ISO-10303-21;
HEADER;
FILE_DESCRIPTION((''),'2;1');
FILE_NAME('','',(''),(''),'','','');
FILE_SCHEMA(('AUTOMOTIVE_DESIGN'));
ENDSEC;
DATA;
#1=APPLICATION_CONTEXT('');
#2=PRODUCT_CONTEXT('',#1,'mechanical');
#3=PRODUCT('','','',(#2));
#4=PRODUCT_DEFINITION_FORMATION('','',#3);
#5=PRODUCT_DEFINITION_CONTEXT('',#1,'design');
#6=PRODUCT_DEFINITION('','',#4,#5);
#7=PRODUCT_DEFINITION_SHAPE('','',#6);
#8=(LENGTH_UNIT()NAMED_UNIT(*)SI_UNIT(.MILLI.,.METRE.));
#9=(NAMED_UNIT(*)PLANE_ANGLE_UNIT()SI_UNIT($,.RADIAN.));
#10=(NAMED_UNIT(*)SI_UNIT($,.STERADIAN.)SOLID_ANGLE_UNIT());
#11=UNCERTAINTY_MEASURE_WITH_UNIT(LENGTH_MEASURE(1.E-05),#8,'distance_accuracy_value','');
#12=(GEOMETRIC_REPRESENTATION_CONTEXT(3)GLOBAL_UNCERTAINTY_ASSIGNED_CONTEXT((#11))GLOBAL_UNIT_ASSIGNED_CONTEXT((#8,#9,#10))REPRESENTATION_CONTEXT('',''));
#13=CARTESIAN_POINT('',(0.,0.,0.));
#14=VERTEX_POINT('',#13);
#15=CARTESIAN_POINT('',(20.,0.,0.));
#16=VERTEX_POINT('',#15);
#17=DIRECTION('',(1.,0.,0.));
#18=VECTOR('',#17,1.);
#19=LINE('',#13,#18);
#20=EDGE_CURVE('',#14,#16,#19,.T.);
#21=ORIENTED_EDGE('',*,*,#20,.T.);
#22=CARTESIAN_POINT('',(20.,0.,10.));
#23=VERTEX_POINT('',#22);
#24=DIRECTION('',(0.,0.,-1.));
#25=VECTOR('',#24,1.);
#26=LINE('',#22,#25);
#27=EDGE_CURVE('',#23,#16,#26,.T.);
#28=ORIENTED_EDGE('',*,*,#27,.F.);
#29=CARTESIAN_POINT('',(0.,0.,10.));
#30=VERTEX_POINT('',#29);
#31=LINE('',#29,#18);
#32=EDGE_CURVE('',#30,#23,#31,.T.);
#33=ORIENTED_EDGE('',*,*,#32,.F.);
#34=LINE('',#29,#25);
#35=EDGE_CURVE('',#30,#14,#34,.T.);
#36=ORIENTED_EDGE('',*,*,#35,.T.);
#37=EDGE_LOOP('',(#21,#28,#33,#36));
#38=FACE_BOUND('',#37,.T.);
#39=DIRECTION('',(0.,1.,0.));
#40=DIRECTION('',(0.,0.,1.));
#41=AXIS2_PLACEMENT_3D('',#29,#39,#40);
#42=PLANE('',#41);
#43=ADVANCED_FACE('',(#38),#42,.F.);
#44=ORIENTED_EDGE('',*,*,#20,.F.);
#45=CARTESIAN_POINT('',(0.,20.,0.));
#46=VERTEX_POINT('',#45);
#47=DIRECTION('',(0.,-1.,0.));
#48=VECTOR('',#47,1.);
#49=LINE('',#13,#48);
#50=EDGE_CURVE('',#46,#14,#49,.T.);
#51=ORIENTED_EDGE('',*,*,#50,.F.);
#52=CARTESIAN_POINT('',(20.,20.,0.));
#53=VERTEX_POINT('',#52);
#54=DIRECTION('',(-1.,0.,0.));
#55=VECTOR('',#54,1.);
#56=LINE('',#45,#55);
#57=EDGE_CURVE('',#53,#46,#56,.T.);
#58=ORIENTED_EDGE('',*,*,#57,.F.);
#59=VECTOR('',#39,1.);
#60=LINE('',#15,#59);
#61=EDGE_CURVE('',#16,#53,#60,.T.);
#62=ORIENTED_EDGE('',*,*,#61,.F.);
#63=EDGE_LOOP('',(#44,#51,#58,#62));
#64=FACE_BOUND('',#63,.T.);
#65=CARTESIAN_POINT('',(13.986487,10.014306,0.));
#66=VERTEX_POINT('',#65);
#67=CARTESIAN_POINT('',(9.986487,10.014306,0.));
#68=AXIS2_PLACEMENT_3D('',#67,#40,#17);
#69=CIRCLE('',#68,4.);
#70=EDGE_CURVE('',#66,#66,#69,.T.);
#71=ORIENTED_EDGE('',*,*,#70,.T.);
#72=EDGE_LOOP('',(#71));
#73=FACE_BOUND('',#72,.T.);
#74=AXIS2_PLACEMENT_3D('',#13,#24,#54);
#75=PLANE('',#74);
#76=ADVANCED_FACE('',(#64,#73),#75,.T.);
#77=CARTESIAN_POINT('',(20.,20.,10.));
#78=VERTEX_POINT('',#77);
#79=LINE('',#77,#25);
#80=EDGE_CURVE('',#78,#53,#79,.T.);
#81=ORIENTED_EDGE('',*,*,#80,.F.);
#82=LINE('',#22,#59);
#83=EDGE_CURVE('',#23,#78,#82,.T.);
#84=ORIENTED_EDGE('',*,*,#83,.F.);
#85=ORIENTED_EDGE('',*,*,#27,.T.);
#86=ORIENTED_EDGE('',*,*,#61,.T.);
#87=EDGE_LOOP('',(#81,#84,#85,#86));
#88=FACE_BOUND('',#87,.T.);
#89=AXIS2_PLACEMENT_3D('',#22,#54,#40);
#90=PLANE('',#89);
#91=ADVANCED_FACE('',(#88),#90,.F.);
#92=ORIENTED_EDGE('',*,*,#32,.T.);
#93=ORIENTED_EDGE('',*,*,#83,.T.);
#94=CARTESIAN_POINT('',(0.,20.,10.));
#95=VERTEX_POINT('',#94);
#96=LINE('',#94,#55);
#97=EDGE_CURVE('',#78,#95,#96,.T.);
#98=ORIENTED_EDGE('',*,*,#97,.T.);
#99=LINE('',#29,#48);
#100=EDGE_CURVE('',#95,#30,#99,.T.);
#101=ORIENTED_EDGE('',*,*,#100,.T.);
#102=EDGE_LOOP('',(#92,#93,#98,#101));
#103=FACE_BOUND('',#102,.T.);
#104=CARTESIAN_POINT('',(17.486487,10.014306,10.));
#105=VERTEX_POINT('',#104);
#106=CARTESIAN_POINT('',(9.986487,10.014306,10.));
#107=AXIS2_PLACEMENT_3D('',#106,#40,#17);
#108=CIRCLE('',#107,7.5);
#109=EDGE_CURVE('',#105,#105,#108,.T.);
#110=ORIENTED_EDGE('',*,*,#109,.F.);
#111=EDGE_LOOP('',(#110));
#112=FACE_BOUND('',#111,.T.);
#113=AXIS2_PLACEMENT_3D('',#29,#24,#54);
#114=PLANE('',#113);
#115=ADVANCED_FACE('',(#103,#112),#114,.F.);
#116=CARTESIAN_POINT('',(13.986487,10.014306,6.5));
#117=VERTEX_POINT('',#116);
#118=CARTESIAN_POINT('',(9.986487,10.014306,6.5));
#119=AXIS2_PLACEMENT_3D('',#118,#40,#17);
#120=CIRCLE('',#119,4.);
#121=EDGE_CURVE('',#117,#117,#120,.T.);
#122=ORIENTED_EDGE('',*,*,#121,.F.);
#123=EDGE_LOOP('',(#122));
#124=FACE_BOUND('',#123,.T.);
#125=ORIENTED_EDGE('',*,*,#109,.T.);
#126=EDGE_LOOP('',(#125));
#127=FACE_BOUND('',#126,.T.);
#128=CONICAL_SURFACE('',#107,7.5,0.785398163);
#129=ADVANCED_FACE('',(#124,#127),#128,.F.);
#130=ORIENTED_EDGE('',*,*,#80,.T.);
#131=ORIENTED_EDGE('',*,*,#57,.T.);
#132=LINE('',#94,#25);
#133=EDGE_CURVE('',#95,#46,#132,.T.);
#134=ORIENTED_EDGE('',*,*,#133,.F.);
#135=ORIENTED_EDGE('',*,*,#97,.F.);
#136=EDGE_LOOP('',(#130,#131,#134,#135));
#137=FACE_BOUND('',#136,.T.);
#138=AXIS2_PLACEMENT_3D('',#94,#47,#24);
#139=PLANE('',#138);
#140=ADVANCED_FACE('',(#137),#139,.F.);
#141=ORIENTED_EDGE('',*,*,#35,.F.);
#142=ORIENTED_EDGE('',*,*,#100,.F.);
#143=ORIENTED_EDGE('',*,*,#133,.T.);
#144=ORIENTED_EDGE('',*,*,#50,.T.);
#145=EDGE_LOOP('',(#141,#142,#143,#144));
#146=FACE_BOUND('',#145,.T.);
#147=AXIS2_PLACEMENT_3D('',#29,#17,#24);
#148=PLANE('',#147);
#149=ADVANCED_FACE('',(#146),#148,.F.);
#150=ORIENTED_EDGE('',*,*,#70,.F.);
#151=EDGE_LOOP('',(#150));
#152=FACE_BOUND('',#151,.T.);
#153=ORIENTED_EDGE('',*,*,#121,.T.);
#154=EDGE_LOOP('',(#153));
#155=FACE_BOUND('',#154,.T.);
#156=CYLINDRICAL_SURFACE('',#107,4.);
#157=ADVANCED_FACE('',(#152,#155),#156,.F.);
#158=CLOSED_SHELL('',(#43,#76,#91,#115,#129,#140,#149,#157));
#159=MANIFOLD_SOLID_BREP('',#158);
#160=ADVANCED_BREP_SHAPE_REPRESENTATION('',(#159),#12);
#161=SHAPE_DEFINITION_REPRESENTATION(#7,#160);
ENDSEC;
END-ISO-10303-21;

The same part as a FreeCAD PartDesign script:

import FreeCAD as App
import Part
import Sketcher
Q = App.Units.Quantity

doc = App.newDocument("Part")
params = doc.addObject("Spreadsheet::Sheet", "Params")
for row, (alias, value) in enumerate([
    ("sketch1_width", "20 mm"),
    ("pad1_length", "10 mm"),
    ("sketch2_diameter", "8 mm"),
    ("hole_diameter", "8 mm"),
    ("hole_csink_diameter", "15 mm"),
], start=1):
    params.set(f"A{row}", alias)
    params.set(f"B{row}", "=" + value)
    params.setAlias(f"B{row}", alias)

body = doc.addObject("PartDesign::Body", "Body")

# Sketch on XY plane
sketch1 = body.newObject("Sketcher::SketchObject", "Sketch")
sketch1.AttachmentSupport = (doc.getObject("XY_Plane"), [""])
sketch1.MapMode = "FlatFace"
sketch1.addGeometry(Part.LineSegment(App.Vector(0, 20, 0), App.Vector(0, 0, 0)), False)
sketch1.addGeometry(Part.LineSegment(App.Vector(0, 0, 0), App.Vector(20, 0, 0)), False)
sketch1.addGeometry(Part.LineSegment(App.Vector(20, 0, 0), App.Vector(20, 20, 0)), False)
sketch1.addGeometry(Part.LineSegment(App.Vector(20, 20, 0), App.Vector(0, 20, 0)), False)
sketch1.addConstraint(Sketcher.Constraint("Coincident", 0, 2, 1, 1))
sketch1.addConstraint(Sketcher.Constraint("Coincident", 1, 2, 2, 1))
sketch1.addConstraint(Sketcher.Constraint("Coincident", 2, 2, 3, 1))
sketch1.addConstraint(Sketcher.Constraint("Coincident", 3, 2, 0, 1))
sketch1.addConstraint(Sketcher.Constraint("Vertical", 0))
sketch1.addConstraint(Sketcher.Constraint("Horizontal", 1))
sketch1.addConstraint(Sketcher.Constraint("Vertical", 2))
sketch1.addConstraint(Sketcher.Constraint("Horizontal", 3))
sketch1.addConstraint(Sketcher.Constraint("Coincident", 0, 2, -1, 1))
sketch1.addConstraint(Sketcher.Constraint("Equal", 3, 0))
sketch1.addConstraint(Sketcher.Constraint("DistanceX", 1, 1, 1, 2, Q("20 mm")))
sketch1.setExpression("Constraints[10]", "Params.sketch1_width")
pad1 = body.newObject("PartDesign::Pad", "Pad")
pad1.Profile = sketch1
pad1.setExpression("Length", "Params.pad1_length")

# Sketch on XY plane
sketch2 = body.newObject("Sketcher::SketchObject", "Sketch001")
sketch2.AttachmentSupport = (doc.getObject("XY_Plane"), [""])
sketch2.MapMode = "FlatFace"
sketch2.AttachmentOffset = App.Placement(App.Vector(0, 0, 10), App.Rotation())
sketch2.addGeometry(Part.Circle(App.Vector(9.986487, 10.014306, 0), App.Vector(0, 0, 1), 4), False)
sketch2.addConstraint(Sketcher.Constraint("Diameter", 0, Q("8 mm")))
sketch2.addConstraint(Sketcher.Constraint("DistanceX", -1, 1, 0, 3, Q("9.986487 mm")))
sketch2.addConstraint(Sketcher.Constraint("DistanceY", -1, 1, 0, 3, Q("10.014306 mm")))
sketch2.setExpression("Constraints[0]", "Params.sketch2_diameter")
doc.recompute()
hole = body.newObject("PartDesign::Hole", "Hole")
hole.Profile = sketch2
hole.ThreadType = "None"
hole.setExpression("Diameter", "Params.hole_diameter")
hole.DepthType = "ThroughAll"
hole.HoleCutType = "Countersink"
hole.setExpression("HoleCutDiameter", "Params.hole_csink_diameter")
hole.HoleCutCountersinkAngle = 90

doc.recompute()
